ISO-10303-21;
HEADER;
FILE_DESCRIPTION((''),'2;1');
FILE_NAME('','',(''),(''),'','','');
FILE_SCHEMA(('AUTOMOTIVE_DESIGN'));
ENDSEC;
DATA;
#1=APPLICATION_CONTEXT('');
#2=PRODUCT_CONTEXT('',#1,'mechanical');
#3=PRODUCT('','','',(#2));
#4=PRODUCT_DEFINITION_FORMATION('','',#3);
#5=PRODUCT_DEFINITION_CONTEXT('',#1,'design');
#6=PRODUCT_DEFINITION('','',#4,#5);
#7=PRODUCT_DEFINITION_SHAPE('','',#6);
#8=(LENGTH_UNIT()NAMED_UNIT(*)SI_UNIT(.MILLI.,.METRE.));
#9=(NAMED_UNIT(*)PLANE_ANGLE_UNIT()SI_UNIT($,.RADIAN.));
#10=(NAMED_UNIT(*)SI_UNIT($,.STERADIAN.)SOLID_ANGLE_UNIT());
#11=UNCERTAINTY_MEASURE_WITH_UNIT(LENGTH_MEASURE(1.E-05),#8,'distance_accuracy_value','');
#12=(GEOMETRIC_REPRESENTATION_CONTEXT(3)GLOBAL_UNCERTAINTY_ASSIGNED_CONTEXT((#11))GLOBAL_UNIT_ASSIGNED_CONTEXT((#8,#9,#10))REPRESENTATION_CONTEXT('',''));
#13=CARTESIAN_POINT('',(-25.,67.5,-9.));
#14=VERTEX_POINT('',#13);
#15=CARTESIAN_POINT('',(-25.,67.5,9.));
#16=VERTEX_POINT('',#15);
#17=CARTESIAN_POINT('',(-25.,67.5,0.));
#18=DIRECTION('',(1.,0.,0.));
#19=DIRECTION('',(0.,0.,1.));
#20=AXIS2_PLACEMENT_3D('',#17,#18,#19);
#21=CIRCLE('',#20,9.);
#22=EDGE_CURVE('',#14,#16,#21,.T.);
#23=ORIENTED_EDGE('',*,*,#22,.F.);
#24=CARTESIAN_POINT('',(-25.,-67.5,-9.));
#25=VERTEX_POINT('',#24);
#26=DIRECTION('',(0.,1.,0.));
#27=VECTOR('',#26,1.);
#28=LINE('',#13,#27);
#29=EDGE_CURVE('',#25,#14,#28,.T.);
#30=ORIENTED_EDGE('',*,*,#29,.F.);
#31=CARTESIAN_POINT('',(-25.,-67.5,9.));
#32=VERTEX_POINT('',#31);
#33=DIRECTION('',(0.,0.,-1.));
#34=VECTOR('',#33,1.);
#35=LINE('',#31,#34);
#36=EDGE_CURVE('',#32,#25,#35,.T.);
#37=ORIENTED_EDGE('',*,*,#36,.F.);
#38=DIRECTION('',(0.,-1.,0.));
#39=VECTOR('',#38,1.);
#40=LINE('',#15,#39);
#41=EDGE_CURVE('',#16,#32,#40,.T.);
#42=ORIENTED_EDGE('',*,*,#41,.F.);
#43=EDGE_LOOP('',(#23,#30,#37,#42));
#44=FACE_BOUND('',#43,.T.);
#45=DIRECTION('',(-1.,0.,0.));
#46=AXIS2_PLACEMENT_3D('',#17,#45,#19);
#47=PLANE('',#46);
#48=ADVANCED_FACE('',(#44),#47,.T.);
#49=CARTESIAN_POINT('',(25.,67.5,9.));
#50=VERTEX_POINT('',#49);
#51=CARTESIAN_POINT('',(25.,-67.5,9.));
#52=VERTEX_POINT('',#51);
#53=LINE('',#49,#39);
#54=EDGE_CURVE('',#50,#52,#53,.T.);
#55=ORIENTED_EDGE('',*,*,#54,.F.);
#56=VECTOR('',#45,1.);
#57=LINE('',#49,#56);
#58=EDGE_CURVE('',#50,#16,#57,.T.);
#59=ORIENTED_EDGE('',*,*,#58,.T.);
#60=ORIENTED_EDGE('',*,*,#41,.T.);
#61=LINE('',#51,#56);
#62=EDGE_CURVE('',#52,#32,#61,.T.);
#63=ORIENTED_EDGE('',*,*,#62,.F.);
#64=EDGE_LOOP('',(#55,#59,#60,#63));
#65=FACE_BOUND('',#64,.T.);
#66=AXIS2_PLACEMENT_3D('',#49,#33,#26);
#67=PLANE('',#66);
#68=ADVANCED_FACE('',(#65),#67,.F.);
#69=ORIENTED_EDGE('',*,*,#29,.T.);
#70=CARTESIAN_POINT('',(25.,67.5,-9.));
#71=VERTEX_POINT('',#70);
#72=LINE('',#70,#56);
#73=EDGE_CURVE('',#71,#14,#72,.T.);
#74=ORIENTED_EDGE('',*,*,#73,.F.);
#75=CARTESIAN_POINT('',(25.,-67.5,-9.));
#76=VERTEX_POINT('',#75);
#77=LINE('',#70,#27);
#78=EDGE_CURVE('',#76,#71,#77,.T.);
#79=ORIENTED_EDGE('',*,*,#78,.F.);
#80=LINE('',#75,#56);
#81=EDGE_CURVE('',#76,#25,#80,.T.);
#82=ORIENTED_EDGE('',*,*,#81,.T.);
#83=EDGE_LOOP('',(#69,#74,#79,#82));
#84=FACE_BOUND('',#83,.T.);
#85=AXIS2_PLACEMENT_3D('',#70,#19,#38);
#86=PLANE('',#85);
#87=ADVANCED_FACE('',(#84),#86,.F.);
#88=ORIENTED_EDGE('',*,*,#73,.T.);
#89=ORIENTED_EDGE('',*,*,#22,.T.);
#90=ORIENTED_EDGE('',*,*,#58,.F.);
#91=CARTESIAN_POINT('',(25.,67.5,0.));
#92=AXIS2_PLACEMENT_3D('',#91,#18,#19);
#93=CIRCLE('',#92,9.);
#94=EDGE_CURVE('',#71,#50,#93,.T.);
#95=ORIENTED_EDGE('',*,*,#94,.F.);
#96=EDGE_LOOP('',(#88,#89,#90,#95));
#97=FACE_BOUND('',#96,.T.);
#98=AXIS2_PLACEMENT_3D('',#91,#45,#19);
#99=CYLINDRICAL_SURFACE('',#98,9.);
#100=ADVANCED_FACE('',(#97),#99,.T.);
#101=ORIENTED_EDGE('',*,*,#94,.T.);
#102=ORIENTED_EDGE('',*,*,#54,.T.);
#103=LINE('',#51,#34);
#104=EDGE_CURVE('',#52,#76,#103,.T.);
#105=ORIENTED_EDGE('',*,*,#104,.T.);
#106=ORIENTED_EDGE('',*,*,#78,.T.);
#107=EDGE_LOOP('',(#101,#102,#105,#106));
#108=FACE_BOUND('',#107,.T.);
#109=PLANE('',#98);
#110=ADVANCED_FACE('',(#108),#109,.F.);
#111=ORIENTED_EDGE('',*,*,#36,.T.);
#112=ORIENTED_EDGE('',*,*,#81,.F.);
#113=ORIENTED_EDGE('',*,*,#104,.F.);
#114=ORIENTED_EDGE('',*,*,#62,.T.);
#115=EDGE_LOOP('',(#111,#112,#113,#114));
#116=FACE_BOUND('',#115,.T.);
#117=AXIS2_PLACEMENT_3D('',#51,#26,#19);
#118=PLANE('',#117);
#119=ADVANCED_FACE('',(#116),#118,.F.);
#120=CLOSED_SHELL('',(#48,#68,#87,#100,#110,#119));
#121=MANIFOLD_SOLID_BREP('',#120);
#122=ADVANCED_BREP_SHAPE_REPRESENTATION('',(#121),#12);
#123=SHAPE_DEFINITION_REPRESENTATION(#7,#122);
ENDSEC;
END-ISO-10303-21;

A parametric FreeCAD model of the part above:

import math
import FreeCAD as App
import Part
import Sketcher

doc = App.newDocument("Part")
body = doc.addObject("PartDesign::Body", "Body")

# Sketch on YZ plane
sketch1 = body.newObject("Sketcher::SketchObject", "Sketch")
sketch1.AttachmentSupport = (doc.getObject("YZ_Plane"), [""])
sketch1.MapMode = "FlatFace"
sketch1.addGeometry([
    Part.LineSegment(App.Vector(68, 9, 0), App.Vector(-68, 9, 0)),
    Part.LineSegment(App.Vector(-68, 9, 0), App.Vector(-68, -9, 0)),
    Part.LineSegment(App.Vector(-68, -9, 0), App.Vector(68, -9, 0)),
    Part.ArcOfCircle(Part.Circle(App.Vector(68, 0, 0), App.Vector(0, 0, 1), 9), math.radians(-90), math.radians(90)),
], False)
sketch1.addConstraint([
    Sketcher.Constraint("Coincident", 0, 2, 1, 1),
    Sketcher.Constraint("Coincident", 1, 2, 2, 1),
    Sketcher.Constraint("Tangent", 2, 2, 3, 1),
    Sketcher.Constraint("Tangent", 3, 2, 0, 1),
    Sketcher.Constraint("Horizontal", 0),
    Sketcher.Constraint("Vertical", 1),
    Sketcher.Constraint("Horizontal", 2),
    Sketcher.Constraint("Symmetric", 0, 2, 2, 2, -1, 1),
    Sketcher.Constraint("Radius", 3, 9.0),
    Sketcher.Constraint("DistanceX", 0, 2, 0, 1, 135.0),
])
pad1 = body.newObject("PartDesign::Pad", "Pad")
pad1.Profile = sketch1
pad1.Length = 50
pad1.Midplane = True

doc.recompute()
